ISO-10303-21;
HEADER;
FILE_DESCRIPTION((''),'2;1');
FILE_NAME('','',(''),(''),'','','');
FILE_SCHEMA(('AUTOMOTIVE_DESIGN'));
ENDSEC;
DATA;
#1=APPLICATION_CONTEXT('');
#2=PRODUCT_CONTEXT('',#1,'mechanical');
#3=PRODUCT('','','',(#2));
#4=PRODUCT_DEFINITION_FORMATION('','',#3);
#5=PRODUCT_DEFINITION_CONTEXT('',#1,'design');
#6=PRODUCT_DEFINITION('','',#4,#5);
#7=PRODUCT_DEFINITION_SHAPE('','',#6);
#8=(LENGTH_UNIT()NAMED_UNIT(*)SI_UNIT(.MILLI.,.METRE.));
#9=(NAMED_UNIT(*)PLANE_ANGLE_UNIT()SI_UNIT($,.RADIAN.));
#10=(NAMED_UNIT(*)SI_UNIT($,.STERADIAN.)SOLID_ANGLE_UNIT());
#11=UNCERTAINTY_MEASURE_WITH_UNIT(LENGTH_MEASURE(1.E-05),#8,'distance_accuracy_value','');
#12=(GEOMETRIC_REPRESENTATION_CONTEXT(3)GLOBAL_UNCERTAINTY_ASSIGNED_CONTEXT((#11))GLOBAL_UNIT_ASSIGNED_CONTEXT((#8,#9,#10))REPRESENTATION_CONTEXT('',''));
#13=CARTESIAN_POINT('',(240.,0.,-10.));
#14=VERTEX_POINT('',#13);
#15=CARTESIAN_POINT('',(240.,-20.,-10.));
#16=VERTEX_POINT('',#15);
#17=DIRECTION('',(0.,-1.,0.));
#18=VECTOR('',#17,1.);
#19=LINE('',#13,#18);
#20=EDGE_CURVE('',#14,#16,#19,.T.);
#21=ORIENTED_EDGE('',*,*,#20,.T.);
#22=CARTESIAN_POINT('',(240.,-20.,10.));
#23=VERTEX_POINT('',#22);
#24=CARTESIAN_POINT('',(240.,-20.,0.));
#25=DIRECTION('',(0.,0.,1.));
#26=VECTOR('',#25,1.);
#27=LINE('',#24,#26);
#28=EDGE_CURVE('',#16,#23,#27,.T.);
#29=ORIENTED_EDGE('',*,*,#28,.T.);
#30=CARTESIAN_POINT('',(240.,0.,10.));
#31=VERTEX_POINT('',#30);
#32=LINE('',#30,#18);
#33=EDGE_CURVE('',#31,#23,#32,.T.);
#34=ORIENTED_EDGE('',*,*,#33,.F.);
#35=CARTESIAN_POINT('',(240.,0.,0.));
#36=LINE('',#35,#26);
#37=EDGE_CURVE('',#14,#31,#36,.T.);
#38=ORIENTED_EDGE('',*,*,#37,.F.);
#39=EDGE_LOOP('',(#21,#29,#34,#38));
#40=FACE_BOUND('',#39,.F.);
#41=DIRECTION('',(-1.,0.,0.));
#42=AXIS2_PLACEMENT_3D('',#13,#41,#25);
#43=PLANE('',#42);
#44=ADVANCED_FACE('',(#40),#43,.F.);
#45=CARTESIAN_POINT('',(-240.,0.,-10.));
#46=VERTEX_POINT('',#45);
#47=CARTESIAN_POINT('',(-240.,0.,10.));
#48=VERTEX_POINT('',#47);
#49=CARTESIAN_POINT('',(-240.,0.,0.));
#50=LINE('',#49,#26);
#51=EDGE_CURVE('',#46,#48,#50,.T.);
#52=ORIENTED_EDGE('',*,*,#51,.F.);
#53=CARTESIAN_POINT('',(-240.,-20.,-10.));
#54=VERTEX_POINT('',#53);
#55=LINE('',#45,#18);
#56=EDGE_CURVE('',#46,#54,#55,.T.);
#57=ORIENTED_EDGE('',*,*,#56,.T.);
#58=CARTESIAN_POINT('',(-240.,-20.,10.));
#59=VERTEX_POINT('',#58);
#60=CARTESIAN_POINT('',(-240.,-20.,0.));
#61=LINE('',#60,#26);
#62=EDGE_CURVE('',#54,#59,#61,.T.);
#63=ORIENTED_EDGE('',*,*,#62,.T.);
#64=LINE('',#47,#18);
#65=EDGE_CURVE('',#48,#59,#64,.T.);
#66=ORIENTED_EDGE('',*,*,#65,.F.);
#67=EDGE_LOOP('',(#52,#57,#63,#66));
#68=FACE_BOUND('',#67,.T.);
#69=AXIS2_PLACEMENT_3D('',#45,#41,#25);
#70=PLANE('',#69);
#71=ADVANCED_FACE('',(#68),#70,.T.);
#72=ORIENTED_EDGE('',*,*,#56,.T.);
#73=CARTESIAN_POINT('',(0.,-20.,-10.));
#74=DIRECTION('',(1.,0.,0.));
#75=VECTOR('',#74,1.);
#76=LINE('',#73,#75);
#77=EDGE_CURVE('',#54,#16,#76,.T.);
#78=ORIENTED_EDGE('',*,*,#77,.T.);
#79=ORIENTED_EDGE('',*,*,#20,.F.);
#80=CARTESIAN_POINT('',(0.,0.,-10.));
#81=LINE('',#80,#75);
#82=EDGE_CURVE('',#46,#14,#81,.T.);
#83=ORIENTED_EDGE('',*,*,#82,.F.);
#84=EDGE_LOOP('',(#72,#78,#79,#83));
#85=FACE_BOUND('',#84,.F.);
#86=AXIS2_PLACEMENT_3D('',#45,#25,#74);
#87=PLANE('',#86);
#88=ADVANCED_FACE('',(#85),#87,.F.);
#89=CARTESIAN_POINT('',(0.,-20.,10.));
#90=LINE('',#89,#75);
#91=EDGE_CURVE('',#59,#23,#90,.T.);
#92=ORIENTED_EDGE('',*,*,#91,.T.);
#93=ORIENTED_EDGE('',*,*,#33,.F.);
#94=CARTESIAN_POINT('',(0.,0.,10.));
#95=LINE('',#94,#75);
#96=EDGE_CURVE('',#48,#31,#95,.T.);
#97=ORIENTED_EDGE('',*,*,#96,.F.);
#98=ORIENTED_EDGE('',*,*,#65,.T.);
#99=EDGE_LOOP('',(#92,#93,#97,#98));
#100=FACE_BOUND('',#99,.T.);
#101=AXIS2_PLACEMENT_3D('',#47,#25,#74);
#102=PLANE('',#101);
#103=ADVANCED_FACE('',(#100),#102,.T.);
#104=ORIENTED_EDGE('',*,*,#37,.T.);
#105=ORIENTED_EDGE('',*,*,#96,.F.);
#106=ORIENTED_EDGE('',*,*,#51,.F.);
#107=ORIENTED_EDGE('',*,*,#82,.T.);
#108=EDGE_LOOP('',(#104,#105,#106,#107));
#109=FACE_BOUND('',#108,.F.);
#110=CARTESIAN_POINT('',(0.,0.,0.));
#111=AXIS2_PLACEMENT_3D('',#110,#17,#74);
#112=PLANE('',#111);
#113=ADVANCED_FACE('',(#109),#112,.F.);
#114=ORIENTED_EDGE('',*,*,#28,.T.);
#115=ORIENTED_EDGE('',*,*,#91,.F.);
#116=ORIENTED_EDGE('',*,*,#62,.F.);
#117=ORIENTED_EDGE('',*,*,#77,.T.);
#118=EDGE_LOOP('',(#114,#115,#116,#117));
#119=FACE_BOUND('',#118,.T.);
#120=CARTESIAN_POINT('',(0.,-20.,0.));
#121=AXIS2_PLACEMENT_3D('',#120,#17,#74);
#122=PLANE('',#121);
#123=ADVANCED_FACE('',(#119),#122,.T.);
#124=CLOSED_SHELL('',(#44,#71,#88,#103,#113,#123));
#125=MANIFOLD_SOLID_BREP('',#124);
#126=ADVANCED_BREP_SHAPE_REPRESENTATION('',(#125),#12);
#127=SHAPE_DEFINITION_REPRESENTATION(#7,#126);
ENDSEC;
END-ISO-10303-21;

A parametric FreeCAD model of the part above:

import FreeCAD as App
import Part
import Sketcher

V = App.Vector

doc = App.newDocument("Part")
body = doc.addObject("PartDesign::Body", "Body")

# Sketch on XZ plane
sketch1 = body.newObject("Sketcher::SketchObject", "Sketch")
sketch1.AttachmentSupport = (doc.getObject("XZ_Plane"), [""])
sketch1.MapMode = "FlatFace"
sketch1.addGeometry([
    Part.LineSegment(V(-240, 10, 0), V(-240, -10, 0)),
    Part.LineSegment(V(-240, -10, 0), V(240, -10, 0)),
    Part.LineSegment(V(240, -10, 0), V(240, 10, 0)),
    Part.LineSegment(V(240, 10, 0), V(-240, 10, 0)),
], False)
sketch1.addConstraint([
    Sketcher.Constraint("Coincident", 0, 2, 1, 1),
    Sketcher.Constraint("Coincident", 1, 2, 2, 1),
    Sketcher.Constraint("Coincident", 2, 2, 3, 1),
    Sketcher.Constraint("Coincident", 3, 2, 0, 1),
    Sketcher.Constraint("Vertical", 0),
    Sketcher.Constraint("Horizontal", 1),
    Sketcher.Constraint("Vertical", 2),
    Sketcher.Constraint("Horizontal", 3),
    Sketcher.Constraint("Symmetric", 0, 2, 2, 2, -1, 1),
    Sketcher.Constraint("DistanceX", 1, 1, 1, 2, 480.0),
    Sketcher.Constraint("DistanceY", 0, 2, 0, 1, 20.0),
])
pad1 = body.newObject("PartDesign::Pad", "Pad")
pad1.Profile = sketch1
pad1.Length = 20

doc.recompute()
